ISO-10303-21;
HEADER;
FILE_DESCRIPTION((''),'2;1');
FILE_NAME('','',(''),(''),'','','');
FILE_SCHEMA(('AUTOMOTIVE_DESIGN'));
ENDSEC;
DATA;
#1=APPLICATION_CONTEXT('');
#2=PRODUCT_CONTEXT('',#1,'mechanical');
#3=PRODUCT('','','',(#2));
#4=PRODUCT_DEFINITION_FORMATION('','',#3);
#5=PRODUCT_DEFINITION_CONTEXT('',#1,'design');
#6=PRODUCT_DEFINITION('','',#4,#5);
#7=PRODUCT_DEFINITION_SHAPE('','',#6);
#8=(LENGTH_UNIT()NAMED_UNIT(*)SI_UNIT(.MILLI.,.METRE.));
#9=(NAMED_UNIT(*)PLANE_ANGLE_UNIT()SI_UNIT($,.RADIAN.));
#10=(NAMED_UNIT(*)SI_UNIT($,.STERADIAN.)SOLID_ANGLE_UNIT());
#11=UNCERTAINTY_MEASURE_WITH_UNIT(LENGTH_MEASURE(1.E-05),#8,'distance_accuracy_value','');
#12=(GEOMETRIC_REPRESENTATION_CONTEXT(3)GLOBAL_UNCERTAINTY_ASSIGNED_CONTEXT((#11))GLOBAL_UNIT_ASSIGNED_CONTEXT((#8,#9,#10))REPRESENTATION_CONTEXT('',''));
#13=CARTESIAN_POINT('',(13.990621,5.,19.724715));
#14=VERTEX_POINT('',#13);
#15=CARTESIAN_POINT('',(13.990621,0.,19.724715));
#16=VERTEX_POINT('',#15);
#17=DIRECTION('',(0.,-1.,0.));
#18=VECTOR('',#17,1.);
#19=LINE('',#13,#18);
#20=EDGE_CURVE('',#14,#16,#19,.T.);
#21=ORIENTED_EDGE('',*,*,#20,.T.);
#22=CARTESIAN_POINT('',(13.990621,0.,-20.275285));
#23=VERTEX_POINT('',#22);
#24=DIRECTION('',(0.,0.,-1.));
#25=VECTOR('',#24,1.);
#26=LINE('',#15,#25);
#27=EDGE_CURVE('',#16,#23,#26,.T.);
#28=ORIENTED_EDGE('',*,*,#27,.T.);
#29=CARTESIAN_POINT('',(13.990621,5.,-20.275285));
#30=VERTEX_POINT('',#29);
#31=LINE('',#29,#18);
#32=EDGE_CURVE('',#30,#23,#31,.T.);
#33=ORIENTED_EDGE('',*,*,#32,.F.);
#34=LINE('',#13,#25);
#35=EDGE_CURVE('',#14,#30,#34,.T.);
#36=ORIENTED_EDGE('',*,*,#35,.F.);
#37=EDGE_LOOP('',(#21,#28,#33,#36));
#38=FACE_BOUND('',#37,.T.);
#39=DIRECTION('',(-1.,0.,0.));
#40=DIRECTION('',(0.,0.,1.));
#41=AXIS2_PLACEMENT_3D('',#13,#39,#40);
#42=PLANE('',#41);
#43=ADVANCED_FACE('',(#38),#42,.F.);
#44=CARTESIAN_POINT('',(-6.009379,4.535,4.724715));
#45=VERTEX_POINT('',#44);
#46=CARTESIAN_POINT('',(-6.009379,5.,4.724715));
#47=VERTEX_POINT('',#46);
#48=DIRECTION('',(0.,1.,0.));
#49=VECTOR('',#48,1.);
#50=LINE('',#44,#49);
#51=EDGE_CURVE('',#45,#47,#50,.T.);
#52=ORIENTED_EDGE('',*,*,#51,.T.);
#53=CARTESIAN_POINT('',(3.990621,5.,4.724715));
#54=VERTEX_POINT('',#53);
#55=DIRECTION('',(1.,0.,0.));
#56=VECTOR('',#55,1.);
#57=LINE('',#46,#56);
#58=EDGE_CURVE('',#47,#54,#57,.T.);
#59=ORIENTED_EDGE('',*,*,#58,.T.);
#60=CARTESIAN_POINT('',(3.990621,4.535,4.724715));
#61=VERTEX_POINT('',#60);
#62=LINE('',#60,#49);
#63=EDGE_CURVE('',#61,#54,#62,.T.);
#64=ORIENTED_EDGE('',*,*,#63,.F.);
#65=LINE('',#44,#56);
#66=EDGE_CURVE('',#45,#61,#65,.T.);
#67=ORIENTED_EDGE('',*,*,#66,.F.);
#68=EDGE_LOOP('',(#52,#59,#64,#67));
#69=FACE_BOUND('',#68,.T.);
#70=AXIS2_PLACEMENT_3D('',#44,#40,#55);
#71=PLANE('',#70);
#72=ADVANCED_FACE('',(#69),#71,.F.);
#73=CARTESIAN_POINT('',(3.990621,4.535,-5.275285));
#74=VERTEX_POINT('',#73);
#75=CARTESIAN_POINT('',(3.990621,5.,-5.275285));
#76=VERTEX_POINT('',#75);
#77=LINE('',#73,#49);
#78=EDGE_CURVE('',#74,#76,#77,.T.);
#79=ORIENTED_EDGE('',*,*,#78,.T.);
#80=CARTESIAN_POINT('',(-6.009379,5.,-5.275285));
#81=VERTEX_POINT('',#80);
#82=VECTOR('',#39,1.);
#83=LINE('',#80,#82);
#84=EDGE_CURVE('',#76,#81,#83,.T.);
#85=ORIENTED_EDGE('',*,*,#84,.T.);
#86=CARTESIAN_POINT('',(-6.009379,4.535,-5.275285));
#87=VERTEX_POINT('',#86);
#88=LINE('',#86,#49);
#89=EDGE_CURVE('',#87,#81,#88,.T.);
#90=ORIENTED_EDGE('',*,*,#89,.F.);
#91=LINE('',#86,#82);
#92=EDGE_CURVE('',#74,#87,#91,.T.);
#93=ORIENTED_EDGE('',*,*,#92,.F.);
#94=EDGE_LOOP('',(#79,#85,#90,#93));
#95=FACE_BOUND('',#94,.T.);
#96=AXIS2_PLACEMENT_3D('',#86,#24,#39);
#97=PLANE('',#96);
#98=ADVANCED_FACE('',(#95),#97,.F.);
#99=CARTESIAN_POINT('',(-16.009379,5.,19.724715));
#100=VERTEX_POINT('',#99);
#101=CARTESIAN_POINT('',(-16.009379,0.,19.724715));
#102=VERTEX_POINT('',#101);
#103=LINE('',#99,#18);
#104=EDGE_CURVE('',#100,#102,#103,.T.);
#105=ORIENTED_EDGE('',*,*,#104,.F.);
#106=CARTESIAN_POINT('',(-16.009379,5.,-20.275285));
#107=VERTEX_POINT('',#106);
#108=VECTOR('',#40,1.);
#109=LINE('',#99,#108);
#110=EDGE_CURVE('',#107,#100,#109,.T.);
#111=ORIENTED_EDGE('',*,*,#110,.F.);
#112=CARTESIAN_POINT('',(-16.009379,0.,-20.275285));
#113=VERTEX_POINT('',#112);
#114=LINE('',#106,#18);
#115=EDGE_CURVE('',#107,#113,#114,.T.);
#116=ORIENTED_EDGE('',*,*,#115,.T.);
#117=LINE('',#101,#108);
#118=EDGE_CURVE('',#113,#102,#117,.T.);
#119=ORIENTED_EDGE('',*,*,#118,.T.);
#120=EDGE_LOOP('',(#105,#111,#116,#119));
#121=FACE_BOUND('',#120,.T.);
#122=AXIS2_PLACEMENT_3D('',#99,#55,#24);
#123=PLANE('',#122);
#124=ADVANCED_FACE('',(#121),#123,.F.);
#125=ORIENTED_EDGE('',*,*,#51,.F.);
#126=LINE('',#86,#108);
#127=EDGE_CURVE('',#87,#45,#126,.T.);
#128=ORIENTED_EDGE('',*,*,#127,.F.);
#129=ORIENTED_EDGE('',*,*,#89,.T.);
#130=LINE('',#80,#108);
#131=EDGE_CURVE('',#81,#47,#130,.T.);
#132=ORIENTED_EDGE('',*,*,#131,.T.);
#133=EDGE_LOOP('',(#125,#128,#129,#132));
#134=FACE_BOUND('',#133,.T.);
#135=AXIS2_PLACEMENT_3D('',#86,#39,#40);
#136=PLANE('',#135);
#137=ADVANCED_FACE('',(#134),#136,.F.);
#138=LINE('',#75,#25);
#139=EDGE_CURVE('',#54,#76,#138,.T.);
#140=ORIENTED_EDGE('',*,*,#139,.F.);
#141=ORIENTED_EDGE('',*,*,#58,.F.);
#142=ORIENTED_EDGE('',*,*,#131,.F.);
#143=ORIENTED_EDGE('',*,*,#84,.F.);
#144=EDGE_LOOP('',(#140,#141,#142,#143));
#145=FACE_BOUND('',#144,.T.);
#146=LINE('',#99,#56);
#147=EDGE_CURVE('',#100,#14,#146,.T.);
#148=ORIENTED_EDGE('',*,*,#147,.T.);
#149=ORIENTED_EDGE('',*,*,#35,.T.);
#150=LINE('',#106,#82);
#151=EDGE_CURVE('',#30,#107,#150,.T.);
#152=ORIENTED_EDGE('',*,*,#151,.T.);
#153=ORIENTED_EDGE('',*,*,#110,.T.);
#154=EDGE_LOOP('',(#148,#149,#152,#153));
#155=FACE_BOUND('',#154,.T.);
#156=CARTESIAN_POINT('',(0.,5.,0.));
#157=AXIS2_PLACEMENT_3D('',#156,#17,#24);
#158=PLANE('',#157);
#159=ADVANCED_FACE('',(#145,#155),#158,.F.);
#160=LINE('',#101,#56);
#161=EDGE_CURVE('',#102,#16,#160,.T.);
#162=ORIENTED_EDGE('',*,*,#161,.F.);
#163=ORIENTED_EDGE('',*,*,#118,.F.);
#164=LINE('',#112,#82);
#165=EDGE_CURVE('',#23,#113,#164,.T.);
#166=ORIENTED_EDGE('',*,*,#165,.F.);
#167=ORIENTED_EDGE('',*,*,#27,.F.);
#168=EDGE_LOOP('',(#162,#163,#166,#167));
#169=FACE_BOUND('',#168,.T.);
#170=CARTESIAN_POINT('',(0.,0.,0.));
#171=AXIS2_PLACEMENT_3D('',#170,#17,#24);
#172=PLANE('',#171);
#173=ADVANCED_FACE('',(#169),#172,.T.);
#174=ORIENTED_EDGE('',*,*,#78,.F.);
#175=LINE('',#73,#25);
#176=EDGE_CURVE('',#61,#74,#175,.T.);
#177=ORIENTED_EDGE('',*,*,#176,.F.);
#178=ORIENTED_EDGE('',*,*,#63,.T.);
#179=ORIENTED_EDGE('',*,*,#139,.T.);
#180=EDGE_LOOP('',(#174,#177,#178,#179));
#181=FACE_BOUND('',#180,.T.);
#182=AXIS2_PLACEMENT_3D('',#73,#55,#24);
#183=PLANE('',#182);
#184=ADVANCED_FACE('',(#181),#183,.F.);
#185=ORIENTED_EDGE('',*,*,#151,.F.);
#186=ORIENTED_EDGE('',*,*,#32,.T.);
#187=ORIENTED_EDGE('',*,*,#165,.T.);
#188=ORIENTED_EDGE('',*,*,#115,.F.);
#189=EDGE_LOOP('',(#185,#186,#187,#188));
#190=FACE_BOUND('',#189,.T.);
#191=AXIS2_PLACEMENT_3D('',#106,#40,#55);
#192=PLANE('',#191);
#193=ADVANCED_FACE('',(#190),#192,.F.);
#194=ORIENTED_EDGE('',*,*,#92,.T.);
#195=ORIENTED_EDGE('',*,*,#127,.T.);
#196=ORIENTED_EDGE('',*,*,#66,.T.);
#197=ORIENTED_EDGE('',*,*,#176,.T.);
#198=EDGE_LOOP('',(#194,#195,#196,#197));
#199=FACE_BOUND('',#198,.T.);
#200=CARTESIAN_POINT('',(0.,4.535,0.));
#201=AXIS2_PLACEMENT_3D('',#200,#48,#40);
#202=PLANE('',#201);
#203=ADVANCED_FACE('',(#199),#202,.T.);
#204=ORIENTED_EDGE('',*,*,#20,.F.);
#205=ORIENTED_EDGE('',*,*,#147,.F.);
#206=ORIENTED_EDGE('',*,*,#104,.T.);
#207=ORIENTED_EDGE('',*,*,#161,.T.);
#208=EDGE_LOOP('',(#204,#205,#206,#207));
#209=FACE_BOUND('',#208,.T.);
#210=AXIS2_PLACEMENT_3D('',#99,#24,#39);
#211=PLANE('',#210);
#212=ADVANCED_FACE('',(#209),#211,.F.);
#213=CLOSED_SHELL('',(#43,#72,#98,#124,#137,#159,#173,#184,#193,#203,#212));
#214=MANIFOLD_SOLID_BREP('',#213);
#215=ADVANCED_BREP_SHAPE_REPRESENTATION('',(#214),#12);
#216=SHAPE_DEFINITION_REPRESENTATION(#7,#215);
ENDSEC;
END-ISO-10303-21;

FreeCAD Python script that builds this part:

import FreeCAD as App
import Part
import Sketcher

V = App.Vector


def add_polygon(sketch, points):
    """Adds a closed chain of lines whose ends are joined by coincident constraints."""
    first, n = sketch.GeometryCount, len(points)
    for a, b in zip(points, points[1:] + points[:1]):
        sketch.addGeometry(Part.LineSegment(App.Vector(*a, 0), App.Vector(*b, 0)), False)
    for i in range(n):
        sketch.addConstraint(Sketcher.Constraint("Coincident", first + i, 2, first + (i + 1) % n, 1))

doc = App.newDocument("Part")
body = doc.addObject("PartDesign::Body", "Body")

# Sketch on XZ plane
sketch1 = body.newObject("Sketcher::SketchObject", "Sketch")
sketch1.AttachmentSupport = (doc.getObject("XZ_Plane"), [""])
sketch1.MapMode = "FlatFace"
add_polygon(sketch1, [(-16, -20), (-16, 20), (14, 20), (14, -20)])  # lines 0-3
sketch1.addConstraint([
    Sketcher.Constraint("Vertical", 0),
    Sketcher.Constraint("Horizontal", 1),
    Sketcher.Constraint("Vertical", 2),
    Sketcher.Constraint("Horizontal", 3),
    Sketcher.Constraint("DistanceX", 1, 1, 1, 2, 30.0),
    Sketcher.Constraint("DistanceY", 0, 1, 0, 2, 40.0),
    Sketcher.Constraint("DistanceX", 0, 2, -1, 1, 16.009379),
    Sketcher.Constraint("DistanceY", -1, 1, 0, 2, 19.724715),
])
pad1 = body.newObject("PartDesign::Pad", "Pad")
pad1.Profile = sketch1
pad1.Length = 5
pad1.Reversed = True

# Sketch on XZ plane
sketch2 = body.newObject("Sketcher::SketchObject", "Sketch001")
sketch2.AttachmentSupport = (doc.getObject("XZ_Plane"), [""])
sketch2.MapMode = "FlatFace"
sketch2.AttachmentOffset = App.Placement(V(0, 0, -5), App.Rotation())
add_polygon(sketch2, [(-6, -5), (-6, 5), (4, 5), (4, -5)])  # lines 0-3
sketch2.addConstraint([
    Sketcher.Constraint("Vertical", 0),
    Sketcher.Constraint("Horizontal", 1),
    Sketcher.Constraint("Vertical", 2),
    Sketcher.Constraint("Horizontal", 3),
    Sketcher.Constraint("Equal", 3, 0),
    Sketcher.Constraint("DistanceX", 1, 1, 1, 2, 10.0),
    Sketcher.Constraint("DistanceX", 0, 2, -1, 1, 6.009379),
    Sketcher.Constraint("DistanceY", -1, 1, 0, 2, 4.724715),
])
pocket1 = body.newObject("PartDesign::Pocket", "Pocket")
pocket1.Profile = sketch2
pocket1.Length = 0.465
pocket1.Reversed = True

doc.recompute()
